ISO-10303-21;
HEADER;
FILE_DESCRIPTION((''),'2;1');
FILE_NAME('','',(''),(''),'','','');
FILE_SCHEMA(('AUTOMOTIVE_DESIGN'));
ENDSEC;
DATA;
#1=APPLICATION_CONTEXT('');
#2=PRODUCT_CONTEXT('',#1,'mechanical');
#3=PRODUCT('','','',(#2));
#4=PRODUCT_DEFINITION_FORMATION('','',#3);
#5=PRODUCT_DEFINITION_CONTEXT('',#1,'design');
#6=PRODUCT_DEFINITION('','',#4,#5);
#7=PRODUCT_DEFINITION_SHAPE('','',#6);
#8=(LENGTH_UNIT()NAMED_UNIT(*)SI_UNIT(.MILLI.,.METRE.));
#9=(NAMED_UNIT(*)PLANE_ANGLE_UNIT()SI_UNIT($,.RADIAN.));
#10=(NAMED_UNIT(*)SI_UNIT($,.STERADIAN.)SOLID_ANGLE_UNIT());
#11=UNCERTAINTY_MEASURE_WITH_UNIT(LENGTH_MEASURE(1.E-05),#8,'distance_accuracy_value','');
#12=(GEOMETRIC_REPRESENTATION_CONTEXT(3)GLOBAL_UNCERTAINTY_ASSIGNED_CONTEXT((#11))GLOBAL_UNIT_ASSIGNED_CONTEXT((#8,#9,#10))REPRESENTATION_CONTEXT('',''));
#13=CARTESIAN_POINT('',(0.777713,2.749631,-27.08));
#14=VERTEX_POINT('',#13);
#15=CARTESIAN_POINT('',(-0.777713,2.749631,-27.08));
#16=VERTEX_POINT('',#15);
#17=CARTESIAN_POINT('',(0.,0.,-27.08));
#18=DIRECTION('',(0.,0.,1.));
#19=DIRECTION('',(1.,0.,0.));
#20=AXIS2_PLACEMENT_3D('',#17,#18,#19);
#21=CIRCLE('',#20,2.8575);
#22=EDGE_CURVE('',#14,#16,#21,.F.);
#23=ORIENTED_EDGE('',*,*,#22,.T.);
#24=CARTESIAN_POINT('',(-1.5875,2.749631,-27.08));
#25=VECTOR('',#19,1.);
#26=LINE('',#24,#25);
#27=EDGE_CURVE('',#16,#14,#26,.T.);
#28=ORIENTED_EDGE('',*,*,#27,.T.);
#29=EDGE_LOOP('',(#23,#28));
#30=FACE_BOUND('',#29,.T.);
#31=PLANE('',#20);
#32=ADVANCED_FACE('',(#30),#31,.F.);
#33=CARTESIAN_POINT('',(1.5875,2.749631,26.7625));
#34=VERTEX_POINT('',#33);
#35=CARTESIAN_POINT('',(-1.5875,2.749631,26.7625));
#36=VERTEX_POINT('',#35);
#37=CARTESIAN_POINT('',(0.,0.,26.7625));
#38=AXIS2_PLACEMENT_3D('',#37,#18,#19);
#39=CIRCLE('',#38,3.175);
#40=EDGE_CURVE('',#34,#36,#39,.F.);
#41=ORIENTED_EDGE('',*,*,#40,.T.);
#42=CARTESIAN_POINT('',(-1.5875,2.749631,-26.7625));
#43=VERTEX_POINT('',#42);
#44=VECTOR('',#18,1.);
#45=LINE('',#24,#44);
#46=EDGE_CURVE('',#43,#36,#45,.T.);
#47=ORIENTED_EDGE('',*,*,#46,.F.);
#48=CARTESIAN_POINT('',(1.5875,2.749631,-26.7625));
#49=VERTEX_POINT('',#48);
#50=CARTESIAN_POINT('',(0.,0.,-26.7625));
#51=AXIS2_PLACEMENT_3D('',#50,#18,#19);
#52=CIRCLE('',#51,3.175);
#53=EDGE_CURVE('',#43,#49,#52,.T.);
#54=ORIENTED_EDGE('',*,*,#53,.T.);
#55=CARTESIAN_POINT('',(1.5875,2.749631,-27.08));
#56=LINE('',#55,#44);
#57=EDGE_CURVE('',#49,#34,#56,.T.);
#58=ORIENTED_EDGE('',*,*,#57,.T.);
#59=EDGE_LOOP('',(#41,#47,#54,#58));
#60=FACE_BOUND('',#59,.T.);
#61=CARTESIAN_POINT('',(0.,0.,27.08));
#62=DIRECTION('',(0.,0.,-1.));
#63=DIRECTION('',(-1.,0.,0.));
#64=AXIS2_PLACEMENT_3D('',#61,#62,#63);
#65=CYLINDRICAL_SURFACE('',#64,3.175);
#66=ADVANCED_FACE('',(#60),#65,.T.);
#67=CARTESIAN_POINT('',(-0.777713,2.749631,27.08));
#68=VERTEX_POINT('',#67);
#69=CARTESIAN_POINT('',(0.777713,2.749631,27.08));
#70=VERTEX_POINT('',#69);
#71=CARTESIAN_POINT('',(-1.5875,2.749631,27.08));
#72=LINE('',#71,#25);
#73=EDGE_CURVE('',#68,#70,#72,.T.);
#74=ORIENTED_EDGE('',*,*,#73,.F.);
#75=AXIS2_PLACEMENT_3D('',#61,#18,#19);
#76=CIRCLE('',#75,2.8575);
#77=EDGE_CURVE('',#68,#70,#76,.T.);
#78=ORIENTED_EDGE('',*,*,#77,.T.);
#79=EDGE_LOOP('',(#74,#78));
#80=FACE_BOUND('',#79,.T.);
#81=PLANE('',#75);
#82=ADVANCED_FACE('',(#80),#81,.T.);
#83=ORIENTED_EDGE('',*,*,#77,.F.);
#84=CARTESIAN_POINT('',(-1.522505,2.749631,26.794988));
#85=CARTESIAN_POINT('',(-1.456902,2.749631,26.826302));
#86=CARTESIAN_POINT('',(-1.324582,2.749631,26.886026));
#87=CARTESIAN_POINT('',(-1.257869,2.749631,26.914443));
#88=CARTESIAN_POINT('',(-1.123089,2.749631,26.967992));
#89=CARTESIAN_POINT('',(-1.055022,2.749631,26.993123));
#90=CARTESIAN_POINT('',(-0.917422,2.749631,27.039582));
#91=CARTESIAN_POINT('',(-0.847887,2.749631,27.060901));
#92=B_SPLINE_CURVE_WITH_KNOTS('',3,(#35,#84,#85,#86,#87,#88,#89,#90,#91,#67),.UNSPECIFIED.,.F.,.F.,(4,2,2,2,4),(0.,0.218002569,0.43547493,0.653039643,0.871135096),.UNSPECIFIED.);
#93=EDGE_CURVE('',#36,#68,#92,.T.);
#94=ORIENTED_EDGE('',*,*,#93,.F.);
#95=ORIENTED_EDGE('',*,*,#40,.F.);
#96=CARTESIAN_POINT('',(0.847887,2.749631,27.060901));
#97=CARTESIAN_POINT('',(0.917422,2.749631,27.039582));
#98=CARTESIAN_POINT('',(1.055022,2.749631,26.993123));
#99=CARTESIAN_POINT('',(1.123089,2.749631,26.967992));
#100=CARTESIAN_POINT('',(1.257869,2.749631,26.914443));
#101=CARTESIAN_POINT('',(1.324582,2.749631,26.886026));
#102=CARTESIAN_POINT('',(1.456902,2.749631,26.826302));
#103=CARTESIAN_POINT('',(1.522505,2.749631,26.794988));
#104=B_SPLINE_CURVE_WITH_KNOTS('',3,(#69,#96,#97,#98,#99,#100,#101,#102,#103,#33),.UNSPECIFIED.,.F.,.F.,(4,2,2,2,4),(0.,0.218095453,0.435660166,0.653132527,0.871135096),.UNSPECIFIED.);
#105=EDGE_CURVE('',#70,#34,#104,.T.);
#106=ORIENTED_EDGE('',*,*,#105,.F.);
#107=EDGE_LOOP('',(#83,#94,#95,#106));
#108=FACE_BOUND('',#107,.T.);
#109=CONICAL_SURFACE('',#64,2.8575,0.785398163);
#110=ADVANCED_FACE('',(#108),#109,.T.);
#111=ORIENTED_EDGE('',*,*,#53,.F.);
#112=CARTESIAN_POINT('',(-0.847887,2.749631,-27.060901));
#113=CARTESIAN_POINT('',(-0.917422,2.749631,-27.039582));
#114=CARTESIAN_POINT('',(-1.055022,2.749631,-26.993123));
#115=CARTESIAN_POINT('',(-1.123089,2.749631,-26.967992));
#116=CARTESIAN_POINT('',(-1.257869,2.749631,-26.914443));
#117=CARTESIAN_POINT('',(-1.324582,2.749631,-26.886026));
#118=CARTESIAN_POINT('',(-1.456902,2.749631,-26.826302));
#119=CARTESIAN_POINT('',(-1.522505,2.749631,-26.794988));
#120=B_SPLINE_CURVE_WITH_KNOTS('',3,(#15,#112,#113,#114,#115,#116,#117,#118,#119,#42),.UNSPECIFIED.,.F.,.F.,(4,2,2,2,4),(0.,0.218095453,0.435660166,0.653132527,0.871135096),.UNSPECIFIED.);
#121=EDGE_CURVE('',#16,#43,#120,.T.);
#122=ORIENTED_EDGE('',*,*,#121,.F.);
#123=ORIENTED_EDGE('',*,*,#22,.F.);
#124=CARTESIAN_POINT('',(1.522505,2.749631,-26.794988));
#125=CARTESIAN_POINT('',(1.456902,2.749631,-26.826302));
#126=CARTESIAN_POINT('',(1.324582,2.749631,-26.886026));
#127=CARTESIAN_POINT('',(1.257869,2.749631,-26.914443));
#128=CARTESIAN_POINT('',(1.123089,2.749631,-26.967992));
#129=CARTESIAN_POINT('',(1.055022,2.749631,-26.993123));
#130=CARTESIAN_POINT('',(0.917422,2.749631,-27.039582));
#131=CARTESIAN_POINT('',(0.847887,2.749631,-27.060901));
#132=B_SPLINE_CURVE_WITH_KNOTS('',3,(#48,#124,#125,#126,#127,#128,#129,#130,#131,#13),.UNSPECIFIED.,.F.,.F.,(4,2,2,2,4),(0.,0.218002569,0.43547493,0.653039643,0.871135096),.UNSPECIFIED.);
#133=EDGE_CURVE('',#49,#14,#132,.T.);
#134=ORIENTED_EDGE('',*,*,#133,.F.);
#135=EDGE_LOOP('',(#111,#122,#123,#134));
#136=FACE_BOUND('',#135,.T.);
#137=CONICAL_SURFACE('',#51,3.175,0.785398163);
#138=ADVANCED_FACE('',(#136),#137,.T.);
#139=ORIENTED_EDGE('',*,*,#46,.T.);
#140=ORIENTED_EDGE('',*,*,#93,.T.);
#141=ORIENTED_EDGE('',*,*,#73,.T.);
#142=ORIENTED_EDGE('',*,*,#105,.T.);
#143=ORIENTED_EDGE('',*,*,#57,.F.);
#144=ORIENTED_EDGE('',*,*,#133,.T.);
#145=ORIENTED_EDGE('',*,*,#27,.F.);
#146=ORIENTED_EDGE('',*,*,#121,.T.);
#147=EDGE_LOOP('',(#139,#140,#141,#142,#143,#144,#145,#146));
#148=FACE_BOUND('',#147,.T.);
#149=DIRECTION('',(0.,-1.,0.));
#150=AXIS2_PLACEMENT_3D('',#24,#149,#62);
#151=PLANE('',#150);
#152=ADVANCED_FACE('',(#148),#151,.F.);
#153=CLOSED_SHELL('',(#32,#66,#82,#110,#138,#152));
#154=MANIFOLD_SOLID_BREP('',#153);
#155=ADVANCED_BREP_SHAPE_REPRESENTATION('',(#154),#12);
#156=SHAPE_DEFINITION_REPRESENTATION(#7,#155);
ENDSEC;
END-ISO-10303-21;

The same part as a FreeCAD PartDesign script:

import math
import FreeCAD as App
import Part
import Sketcher

V = App.Vector
Q = App.Units.Quantity


def edges_at(feature, points):
    """Names of the edges that pass closest to the given points."""
    edges = feature.Shape.Edges
    near = lambda p: min(range(len(edges)), key=lambda i: edges[i].distToShape(Part.Vertex(*p))[0])
    return sorted({f"Edge{near(p) + 1}" for p in points})

doc = App.newDocument("Part")
body = doc.addObject("PartDesign::Body", "Body")

sketch1 = body.newObject("Sketcher::SketchObject", "Sketch")
sketch1.AttachmentSupport = (doc.getObject("XY_Plane"), [""])
sketch1.MapMode = "FlatFace"
sketch1.addGeometry(Part.Circle(V(0, 0, 0), V(0, 0, 1), 3.175), False)
sketch1.addConstraint(Sketcher.Constraint("Coincident", 0, 3, -1, 1))
sketch1.addConstraint(Sketcher.Constraint("Diameter", 0, Q("0.25 in")))
pad1 = body.newObject("PartDesign::Pad", "Pad")
pad1.Profile = sketch1
pad1.Type = "TwoLengths"
pad1.Length = 27.08
pad1.Length2 = 27.08

sketch2 = body.newObject("Sketcher::SketchObject", "Sketch001")
sketch2.AttachmentSupport = (doc.getObject("XY_Plane"), [""])
sketch2.MapMode = "FlatFace"
sketch2.addGeometry(Part.LineSegment(V(-1.5875, 2.749631, 0), V(1.5875, 2.749631, 0)), False)
sketch2.addGeometry(Part.ArcOfCircle(Part.Circle(V(0, 0, 0), V(0, 0, 1), 3.175), math.radians(60), math.radians(120)), False)
sketch2.addConstraint(Sketcher.Constraint("Coincident", 0, 1, 1, 2))
sketch2.addConstraint(Sketcher.Constraint("Coincident", 1, 1, 0, 2))
sketch2.addConstraint(Sketcher.Constraint("Horizontal", 0))
sketch2.addConstraint(Sketcher.Constraint("Coincident", 1, 3, -1, 1))
sketch2.addConstraint(Sketcher.Constraint("Radius", 1, Q("0.125 in")))
sketch2.addConstraint(Sketcher.Constraint("DistanceX", 0, 1, 0, 2, Q("0.125 in")))
pocket1 = body.newObject("PartDesign::Pocket", "Pocket")
pocket1.Profile = sketch2
pocket1.Type = "ThroughAll"
pocket1.Midplane = True
doc.recompute()

chamfer = body.newObject("PartDesign::Chamfer", "Chamfer")
chamfer.Base = (pocket1, edges_at(pocket1, [(0, -3.175, -27.08), (0, -3.175, 27.08)]))
chamfer.Size = Q("0.0125 in")

doc.recompute()
